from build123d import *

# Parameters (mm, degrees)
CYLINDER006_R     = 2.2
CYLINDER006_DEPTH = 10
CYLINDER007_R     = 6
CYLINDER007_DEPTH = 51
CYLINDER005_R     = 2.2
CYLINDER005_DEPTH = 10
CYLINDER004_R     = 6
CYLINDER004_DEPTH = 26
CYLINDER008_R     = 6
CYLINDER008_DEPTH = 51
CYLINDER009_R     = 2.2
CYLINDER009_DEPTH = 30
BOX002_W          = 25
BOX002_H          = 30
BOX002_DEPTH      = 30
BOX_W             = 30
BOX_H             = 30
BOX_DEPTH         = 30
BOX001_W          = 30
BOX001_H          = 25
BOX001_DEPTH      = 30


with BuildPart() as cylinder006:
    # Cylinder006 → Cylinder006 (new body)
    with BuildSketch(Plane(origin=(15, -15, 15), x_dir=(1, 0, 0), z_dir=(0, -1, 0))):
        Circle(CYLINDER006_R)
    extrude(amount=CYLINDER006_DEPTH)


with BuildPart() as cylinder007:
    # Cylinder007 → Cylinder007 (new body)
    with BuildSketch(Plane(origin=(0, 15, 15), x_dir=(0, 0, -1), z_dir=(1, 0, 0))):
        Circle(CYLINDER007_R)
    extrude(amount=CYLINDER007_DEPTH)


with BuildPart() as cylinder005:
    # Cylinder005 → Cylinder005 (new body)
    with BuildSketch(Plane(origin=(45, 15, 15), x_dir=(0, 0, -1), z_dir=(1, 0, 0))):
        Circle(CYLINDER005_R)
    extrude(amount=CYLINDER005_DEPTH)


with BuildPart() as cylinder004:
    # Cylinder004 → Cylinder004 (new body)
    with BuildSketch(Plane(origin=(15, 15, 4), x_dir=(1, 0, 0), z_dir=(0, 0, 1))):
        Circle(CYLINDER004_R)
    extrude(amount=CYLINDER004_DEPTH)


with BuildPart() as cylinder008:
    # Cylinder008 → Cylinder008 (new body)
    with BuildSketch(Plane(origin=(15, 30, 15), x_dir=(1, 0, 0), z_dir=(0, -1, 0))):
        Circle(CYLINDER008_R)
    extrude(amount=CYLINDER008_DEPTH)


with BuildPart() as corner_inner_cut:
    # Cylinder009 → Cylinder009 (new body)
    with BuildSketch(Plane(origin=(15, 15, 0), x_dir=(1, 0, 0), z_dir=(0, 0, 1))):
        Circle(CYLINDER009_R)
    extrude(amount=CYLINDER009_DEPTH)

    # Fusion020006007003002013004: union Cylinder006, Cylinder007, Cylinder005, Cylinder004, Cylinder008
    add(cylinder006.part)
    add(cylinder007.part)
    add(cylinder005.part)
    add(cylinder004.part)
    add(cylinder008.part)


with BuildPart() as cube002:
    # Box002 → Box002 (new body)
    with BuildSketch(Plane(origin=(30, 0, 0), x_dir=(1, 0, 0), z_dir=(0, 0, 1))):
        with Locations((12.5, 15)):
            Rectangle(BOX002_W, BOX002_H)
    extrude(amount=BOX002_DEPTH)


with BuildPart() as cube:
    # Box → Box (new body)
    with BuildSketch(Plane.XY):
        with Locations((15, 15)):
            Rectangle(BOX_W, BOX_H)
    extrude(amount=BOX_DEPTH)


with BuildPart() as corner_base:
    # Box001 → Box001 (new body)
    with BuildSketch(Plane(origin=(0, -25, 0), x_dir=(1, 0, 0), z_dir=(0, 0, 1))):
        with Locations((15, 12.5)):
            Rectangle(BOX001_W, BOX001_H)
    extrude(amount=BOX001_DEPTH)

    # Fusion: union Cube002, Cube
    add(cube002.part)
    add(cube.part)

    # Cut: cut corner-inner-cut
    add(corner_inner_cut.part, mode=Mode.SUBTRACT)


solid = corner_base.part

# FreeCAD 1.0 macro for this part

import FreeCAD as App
import Part
import Sketcher

doc = App.newDocument("Part")
body = doc.addObject("PartDesign::Body", "Body")

sketch1 = body.newObject("Sketcher::SketchObject", "Sketch")
sketch1.AttachmentSupport = (doc.getObject("XZ_Plane"), [""])
sketch1.MapMode = "FlatFace"
sketch1.AttachmentOffset = App.Placement(App.Vector(0, 0, 15), App.Rotation())
sketch1.addGeometry(Part.Circle(App.Vector(15, 15, 0), App.Vector(0, 0, 1), 2.2), False)
sketch1.addConstraint([
    Sketcher.Constraint("Diameter", 0, 4.4),
    Sketcher.Constraint("DistanceX", -1, 1, 0, 3, 15.0),
    Sketcher.Constraint("DistanceY", -1, 1, 0, 3, 15.0),
])
pad1 = body.newObject("PartDesign::Pad", "Pad")
pad1.Profile = sketch1
pad1.Length = 10
body2 = doc.addObject("PartDesign::Body", "Body001")

sketch2 = body2.newObject("Sketcher::SketchObject", "Sketch001")
sketch2.AttachmentSupport = (doc.getObject("YZ_Plane001"), [""])
sketch2.MapMode = "FlatFace"
sketch2.addGeometry(Part.Circle(App.Vector(15, 15, 0), App.Vector(0, 0, 1), 6), False)
sketch2.addConstraint([
    Sketcher.Constraint("Diameter", 0, 12.0),
    Sketcher.Constraint("DistanceX", -1, 1, 0, 3, 15.0),
    Sketcher.Constraint("DistanceY", -1, 1, 0, 3, 15.0),
])
pad2 = body2.newObject("PartDesign::Pad", "Pad001")
pad2.Profile = sketch2
pad2.Length = 51
body3 = doc.addObject("PartDesign::Body", "Body002")

sketch3 = body3.newObject("Sketcher::SketchObject", "Sketch002")
sketch3.AttachmentSupport = (doc.getObject("YZ_Plane002"), [""])
sketch3.MapMode = "FlatFace"
sketch3.AttachmentOffset = App.Placement(App.Vector(0, 0, 45), App.Rotation())
sketch3.addGeometry(Part.Circle(App.Vector(15, 15, 0), App.Vector(0, 0, 1), 2.2), False)
sketch3.addConstraint([
    Sketcher.Constraint("Diameter", 0, 4.4),
    Sketcher.Constraint("DistanceX", -1, 1, 0, 3, 15.0),
    Sketcher.Constraint("DistanceY", -1, 1, 0, 3, 15.0),
])
pad3 = body3.newObject("PartDesign::Pad", "Pad002")
pad3.Profile = sketch3
pad3.Length = 10
body4 = doc.addObject("PartDesign::Body", "Body003")

sketch4 = body4.newObject("Sketcher::SketchObject", "Sketch003")
sketch4.AttachmentSupport = (doc.getObject("XY_Plane003"), [""])
sketch4.MapMode = "FlatFace"
sketch4.AttachmentOffset = App.Placement(App.Vector(0, 0, 4), App.Rotation())
sketch4.addGeometry(Part.Circle(App.Vector(15, 15, 0), App.Vector(0, 0, 1), 6), False)
sketch4.addConstraint([
    Sketcher.Constraint("Diameter", 0, 12.0),
    Sketcher.Constraint("DistanceX", -1, 1, 0, 3, 15.0),
    Sketcher.Constraint("DistanceY", -1, 1, 0, 3, 15.0),
])
pad4 = body4.newObject("PartDesign::Pad", "Pad003")
pad4.Profile = sketch4
pad4.Length = 26
body5 = doc.addObject("PartDesign::Body", "Body004")

sketch5 = body5.newObject("Sketcher::SketchObject", "Sketch004")
sketch5.AttachmentSupport = (doc.getObject("XZ_Plane004"), [""])
sketch5.MapMode = "FlatFace"
sketch5.AttachmentOffset = App.Placement(App.Vector(0, 0, -30), App.Rotation())
sketch5.addGeometry(Part.Circle(App.Vector(15, 15, 0), App.Vector(0, 0, 1), 6), False)
sketch5.addConstraint([
    Sketcher.Constraint("Diameter", 0, 12.0),
    Sketcher.Constraint("DistanceX", -1, 1, 0, 3, 15.0),
    Sketcher.Constraint("DistanceY", -1, 1, 0, 3, 15.0),
])
pad5 = body5.newObject("PartDesign::Pad", "Pad004")
pad5.Profile = sketch5
pad5.Length = 51
body6 = doc.addObject("PartDesign::Body", "Body005")
body6.AllowCompound = True

sketch6 = body6.newObject("Sketcher::SketchObject", "Sketch005")
sketch6.AttachmentSupport = (doc.getObject("XY_Plane005"), [""])
sketch6.MapMode = "FlatFace"
sketch6.addGeometry(Part.Circle(App.Vector(15, 15, 0), App.Vector(0, 0, 1), 2.2), False)
sketch6.addConstraint([
    Sketcher.Constraint("Diameter", 0, 4.4),
    Sketcher.Constraint("DistanceX", -1, 1, 0, 3, 15.0),
    Sketcher.Constraint("DistanceY", -1, 1, 0, 3, 15.0),
])
pad6 = body6.newObject("PartDesign::Pad", "Pad005")
pad6.Profile = sketch6
pad6.Length = 30
doc.recompute()

boolean = body6.newObject("PartDesign::Boolean", "Boolean")
boolean.Type = "Fuse"
boolean.addObjects([body])
doc.recompute()

boolean2 = body6.newObject("PartDesign::Boolean", "Boolean001")
boolean2.Type = "Fuse"
boolean2.addObjects([body2])
doc.recompute()

boolean3 = body6.newObject("PartDesign::Boolean", "Boolean002")
boolean3.Type = "Fuse"
boolean3.addObjects([body3])
doc.recompute()

boolean4 = body6.newObject("PartDesign::Boolean", "Boolean003")
boolean4.Type = "Fuse"
boolean4.addObjects([body4])
doc.recompute()

boolean5 = body6.newObject("PartDesign::Boolean", "Boolean004")
boolean5.Type = "Fuse"
boolean5.addObjects([body5])
body7 = doc.addObject("PartDesign::Body", "Body006")

sketch7 = body7.newObject("Sketcher::SketchObject", "Sketch006")
sketch7.AttachmentSupport = (doc.getObject("XY_Plane006"), [""])
sketch7.MapMode = "FlatFace"
sketch7.addGeometry([
    Part.LineSegment(App.Vector(30, 30, 0), App.Vector(30, 0, 0)),
    Part.LineSegment(App.Vector(30, 0, 0), App.Vector(55, 0, 0)),
    Part.LineSegment(App.Vector(55, 0, 0), App.Vector(55, 30, 0)),
    Part.LineSegment(App.Vector(55, 30, 0), App.Vector(30, 30, 0)),
], False)
sketch7.addConstraint([
    Sketcher.Constraint("Coincident", 0, 2, 1, 1),
    Sketcher.Constraint("Coincident", 1, 2, 2, 1),
    Sketcher.Constraint("Coincident", 2, 2, 3, 1),
    Sketcher.Constraint("Coincident", 3, 2, 0, 1),
    Sketcher.Constraint("Vertical", 0),
    Sketcher.Constraint("Horizontal", 1),
    Sketcher.Constraint("Vertical", 2),
    Sketcher.Constraint("Horizontal", 3),
    Sketcher.Constraint("PointOnObject", 0, 2, -1),
    Sketcher.Constraint("DistanceX", 1, 1, 1, 2, 25.0),
    Sketcher.Constraint("DistanceY", 0, 2, 0, 1, 30.0),
    Sketcher.Constraint("DistanceX", -1, 1, 0, 2, 30.0),
])
pad7 = body7.newObject("PartDesign::Pad", "Pad006")
pad7.Profile = sketch7
pad7.Length = 30
body8 = doc.addObject("PartDesign::Body", "Body007")

sketch8 = body8.newObject("Sketcher::SketchObject", "Sketch007")
sketch8.AttachmentSupport = (doc.getObject("XY_Plane007"), [""])
sketch8.MapMode = "FlatFace"
sketch8.addGeometry([
    Part.LineSegment(App.Vector(0, 30, 0), App.Vector(0, 0, 0)),
    Part.LineSegment(App.Vector(0, 0, 0), App.Vector(30, 0, 0)),
    Part.LineSegment(App.Vector(30, 0, 0), App.Vector(30, 30, 0)),
    Part.LineSegment(App.Vector(30, 30, 0), App.Vector(0, 30, 0)),
], False)
sketch8.addConstraint([
    Sketcher.Constraint("Coincident", 0, 2, 1, 1),
    Sketcher.Constraint("Coincident", 1, 2, 2, 1),
    Sketcher.Constraint("Coincident", 2, 2, 3, 1),
    Sketcher.Constraint("Coincident", 3, 2, 0, 1),
    Sketcher.Constraint("Vertical", 0),
    Sketcher.Constraint("Horizontal", 1),
    Sketcher.Constraint("Vertical", 2),
    Sketcher.Constraint("Horizontal", 3),
    Sketcher.Constraint("Coincident", 0, 2, -1, 1),
    Sketcher.Constraint("Equal", 3, 0),
    Sketcher.Constraint("DistanceX", 1, 1, 1, 2, 30.0),
])
pad8 = body8.newObject("PartDesign::Pad", "Pad007")
pad8.Profile = sketch8
pad8.Length = 30
body9 = doc.addObject("PartDesign::Body", "Body008")
body9.AllowCompound = True

sketch9 = body9.newObject("Sketcher::SketchObject", "Sketch008")
sketch9.AttachmentSupport = (doc.getObject("XY_Plane008"), [""])
sketch9.MapMode = "FlatFace"
sketch9.addGeometry([
    Part.LineSegment(App.Vector(0, 0, 0), App.Vector(0, -25, 0)),
    Part.LineSegment(App.Vector(0, -25, 0), App.Vector(30, -25, 0)),
    Part.LineSegment(App.Vector(30, -25, 0), App.Vector(30, 0, 0)),
    Part.LineSegment(App.Vector(30, 0, 0), App.Vector(0, 0, 0)),
], False)
sketch9.addConstraint([
    Sketcher.Constraint("Coincident", 0, 2, 1, 1),
    Sketcher.Constraint("Coincident", 1, 2, 2, 1),
    Sketcher.Constraint("Coincident", 2, 2, 3, 1),
    Sketcher.Constraint("Coincident", 3, 2, 0, 1),
    Sketcher.Constraint("Vertical", 0),
    Sketcher.Constraint("Horizontal", 1),
    Sketcher.Constraint("Vertical", 2),
    Sketcher.Constraint("Horizontal", 3),
    Sketcher.Constraint("Coincident", 3, 2, -1, 1),
    Sketcher.Constraint("DistanceX", 1, 1, 1, 2, 30.0),
    Sketcher.Constraint("DistanceY", 0, 2, 0, 1, 25.0),
])
pad9 = body9.newObject("PartDesign::Pad", "Pad008")
pad9.Profile = sketch9
pad9.Length = 30
doc.recompute()

boolean6 = body9.newObject("PartDesign::Boolean", "Boolean005")
boolean6.Type = "Fuse"
boolean6.addObjects([body7])
doc.recompute()

boolean7 = body9.newObject("PartDesign::Boolean", "Boolean006")
boolean7.Type = "Fuse"
boolean7.addObjects([body8])
doc.recompute()

boolean8 = body9.newObject("PartDesign::Boolean", "Boolean007")
boolean8.Type = "Cut"
boolean8.addObjects([body6])

doc.recompute()
